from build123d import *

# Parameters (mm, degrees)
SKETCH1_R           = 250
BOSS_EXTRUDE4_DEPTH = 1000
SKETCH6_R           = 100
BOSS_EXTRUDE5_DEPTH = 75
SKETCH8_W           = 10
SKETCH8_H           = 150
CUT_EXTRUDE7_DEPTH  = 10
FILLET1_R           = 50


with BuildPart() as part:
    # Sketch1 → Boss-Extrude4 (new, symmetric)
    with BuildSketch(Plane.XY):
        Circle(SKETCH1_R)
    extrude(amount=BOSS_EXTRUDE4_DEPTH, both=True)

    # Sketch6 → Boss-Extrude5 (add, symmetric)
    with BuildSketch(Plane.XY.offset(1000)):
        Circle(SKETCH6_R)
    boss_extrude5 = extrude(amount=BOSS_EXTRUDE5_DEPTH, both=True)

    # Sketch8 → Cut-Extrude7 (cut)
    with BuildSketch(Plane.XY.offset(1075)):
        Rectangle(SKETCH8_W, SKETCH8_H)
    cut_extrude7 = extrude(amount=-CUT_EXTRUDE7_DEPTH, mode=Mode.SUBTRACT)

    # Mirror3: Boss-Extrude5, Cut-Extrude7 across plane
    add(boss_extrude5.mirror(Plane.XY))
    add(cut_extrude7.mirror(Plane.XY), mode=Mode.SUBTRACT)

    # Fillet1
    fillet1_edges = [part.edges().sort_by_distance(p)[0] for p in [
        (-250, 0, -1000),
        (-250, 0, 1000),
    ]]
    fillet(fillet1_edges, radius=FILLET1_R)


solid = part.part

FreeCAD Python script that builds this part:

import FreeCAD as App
import Part
import Sketcher
from FreeCAD import Vector


def edges_at(feature, points):
    """Names of the edges that pass closest to the given points."""
    edges = feature.Shape.Edges
    near = lambda p: min(range(len(edges)), key=lambda i: edges[i].distToShape(Part.Vertex(*p))[0])
    return sorted({f"Edge{near(p) + 1}" for p in points})


def add_polygon(sketch, points):
    """Adds a closed chain of lines whose ends are joined by coincident constraints."""
    first, n = sketch.GeometryCount, len(points)
    for a, b in zip(points, points[1:] + points[:1]):
        sketch.addGeometry(Part.LineSegment(App.Vector(*a, 0), App.Vector(*b, 0)), False)
    for i in range(n):
        sketch.addConstraint(Sketcher.Constraint("Coincident", first + i, 2, first + (i + 1) % n, 1))

doc = App.newDocument("Part")
body = doc.addObject("PartDesign::Body", "Body")

# Sketch on XY plane
sketch1 = doc.addObject("Sketcher::SketchObject", "Sketch")
body.addObject(sketch1)
sketch1.AttachmentSupport = (doc.XY_Plane, [""])
sketch1.MapMode = "FlatFace"
sketch1.addGeometry(Part.Circle(Vector(0, 0, 0), Vector(0, 0, 1), 250), False)
sketch1.addConstraint(Sketcher.Constraint("Coincident", 0, 3, -1, 1))
sketch1.addConstraint(Sketcher.Constraint("Diameter", 0, 500.0))
pad1 = doc.addObject("PartDesign::Pad", "Pad")
body.addObject(pad1)
pad1.Profile = sketch1
pad1.Length = 2000
pad1.Midplane = True

# Sketch on XY plane
sketch2 = doc.addObject("Sketcher::SketchObject", "Sketch001")
body.addObject(sketch2)
sketch2.AttachmentSupport = (doc.XY_Plane, [""])
sketch2.MapMode = "FlatFace"
sketch2.AttachmentOffset = App.Placement(Vector(0, 0, 1000), App.Rotation())
sketch2.addGeometry(Part.Circle(Vector(0, 0, 0), Vector(0, 0, 1), 100), False)
sketch2.addConstraint(Sketcher.Constraint("Coincident", 0, 3, -1, 1))
sketch2.addConstraint(Sketcher.Constraint("Diameter", 0, 200.0))
pad2 = doc.addObject("PartDesign::Pad", "Pad001")
body.addObject(pad2)
pad2.Profile = sketch2
pad2.Length = 150
pad2.Midplane = True

# Sketch on XY plane
sketch3 = doc.addObject("Sketcher::SketchObject", "Sketch002")
body.addObject(sketch3)
sketch3.AttachmentSupport = (doc.XY_Plane, [""])
sketch3.MapMode = "FlatFace"
sketch3.AttachmentOffset = App.Placement(Vector(0, 0, 1075), App.Rotation())
add_polygon(sketch3, [(-5, 75), (-5, -75), (5, -75), (5, 75)])  # lines 0-3
sketch3.addConstraint(Sketcher.Constraint("Vertical", 0))
sketch3.addConstraint(Sketcher.Constraint("Horizontal", 1))
sketch3.addConstraint(Sketcher.Constraint("Vertical", 2))
sketch3.addConstraint(Sketcher.Constraint("Horizontal", 3))
sketch3.addConstraint(Sketcher.Constraint("Symmetric", 0, 2, 2, 2, -1, 1))
sketch3.addConstraint(Sketcher.Constraint("DistanceX", 1, 1, 1, 2, 10.0))
sketch3.addConstraint(Sketcher.Constraint("DistanceY", 0, 2, 0, 1, 150.0))
pocket1 = doc.addObject("PartDesign::Pocket", "Pocket")
body.addObject(pocket1)
pocket1.Profile = sketch3
pocket1.Length = 10
doc.recompute()

mirrored = doc.addObject("PartDesign::Mirrored", "Mirrored")
body.addObject(mirrored)
mirrored.Originals = [pad2, pocket1]
mirrored.MirrorPlane = (doc.XY_Plane, [""])
body.Tip = mirrored
doc.recompute()

fillet = doc.addObject("PartDesign::Fillet", "Fillet")
body.addObject(fillet)
fillet.Base = (mirrored, edges_at(mirrored, [(-250, 0, -1000), (-250, 0, 1000)]))
fillet.Radius = 50

doc.recompute()
